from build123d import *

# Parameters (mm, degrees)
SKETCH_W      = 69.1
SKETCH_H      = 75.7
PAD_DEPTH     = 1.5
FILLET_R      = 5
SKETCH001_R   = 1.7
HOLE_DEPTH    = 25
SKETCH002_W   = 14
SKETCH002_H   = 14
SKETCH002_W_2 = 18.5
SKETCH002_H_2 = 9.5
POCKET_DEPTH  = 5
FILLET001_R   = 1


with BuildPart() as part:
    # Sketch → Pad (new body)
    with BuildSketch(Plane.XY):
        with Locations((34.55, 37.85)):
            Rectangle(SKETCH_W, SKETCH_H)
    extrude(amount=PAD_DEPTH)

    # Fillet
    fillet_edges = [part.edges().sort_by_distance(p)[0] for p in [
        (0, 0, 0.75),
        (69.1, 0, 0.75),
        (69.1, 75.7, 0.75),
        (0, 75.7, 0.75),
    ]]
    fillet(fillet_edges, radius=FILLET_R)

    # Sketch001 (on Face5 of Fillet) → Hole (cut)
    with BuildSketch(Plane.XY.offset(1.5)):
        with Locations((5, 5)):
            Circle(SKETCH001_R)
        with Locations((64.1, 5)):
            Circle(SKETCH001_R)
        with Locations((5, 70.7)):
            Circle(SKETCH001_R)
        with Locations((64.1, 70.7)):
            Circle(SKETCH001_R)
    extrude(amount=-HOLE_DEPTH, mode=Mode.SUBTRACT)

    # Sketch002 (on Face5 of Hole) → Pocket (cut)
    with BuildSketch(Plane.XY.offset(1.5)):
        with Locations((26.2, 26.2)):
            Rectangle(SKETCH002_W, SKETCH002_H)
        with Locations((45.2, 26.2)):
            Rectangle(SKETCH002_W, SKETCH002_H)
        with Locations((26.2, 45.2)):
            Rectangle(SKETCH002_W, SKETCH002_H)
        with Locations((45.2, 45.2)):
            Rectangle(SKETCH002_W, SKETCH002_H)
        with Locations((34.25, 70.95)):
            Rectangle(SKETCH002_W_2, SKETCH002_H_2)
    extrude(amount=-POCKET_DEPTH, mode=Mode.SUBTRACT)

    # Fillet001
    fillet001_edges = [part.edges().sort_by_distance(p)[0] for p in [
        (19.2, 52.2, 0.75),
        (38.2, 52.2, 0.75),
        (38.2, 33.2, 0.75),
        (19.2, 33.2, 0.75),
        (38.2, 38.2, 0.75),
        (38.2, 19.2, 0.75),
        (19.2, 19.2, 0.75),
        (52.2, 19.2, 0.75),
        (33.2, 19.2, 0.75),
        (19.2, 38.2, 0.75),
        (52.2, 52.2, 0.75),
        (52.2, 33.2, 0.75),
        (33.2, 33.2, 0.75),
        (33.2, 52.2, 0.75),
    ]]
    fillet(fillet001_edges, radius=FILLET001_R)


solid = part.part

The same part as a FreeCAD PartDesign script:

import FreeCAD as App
import Part
import Sketcher

V = App.Vector
Q = App.Units.Quantity


def edges_at(feature, points):
    """Names of the edges that pass closest to the given points."""
    edges = feature.Shape.Edges
    near = lambda p: min(range(len(edges)), key=lambda i: edges[i].distToShape(Part.Vertex(*p))[0])
    return sorted({f"Edge{near(p) + 1}" for p in points})


def add_polygon(sketch, points):
    """Adds a closed chain of lines whose ends are joined by coincident constraints."""
    first, n = sketch.GeometryCount, len(points)
    for a, b in zip(points, points[1:] + points[:1]):
        sketch.addGeometry(Part.LineSegment(App.Vector(*a, 0), App.Vector(*b, 0)), False)
    for i in range(n):
        sketch.addConstraint(Sketcher.Constraint("Coincident", first + i, 2, first + (i + 1) % n, 1))

doc = App.newDocument("Part")
params = doc.addObject("Spreadsheet::Sheet", "Params")
for row, (alias, value) in enumerate([
    ("sketch1_width", "69.1 mm"),
    ("sketch1_height", "75.7 mm"),
    ("pad1_length", "1.5 mm"),
    ("fillet_radius", "5 mm"),
    ("sketch2_diameter", "3.4 mm"),
    ("pocket1_length", "25 mm"),
    ("sketch3_width", "14 mm"),
    ("sketch3_width2", "18.5 mm"),
    ("sketch3_height", "9.5 mm"),
    ("pocket2_length", "5 mm"),
    ("fillet2_radius", "1 mm"),
], start=1):
    params.set(f"A{row}", alias)
    params.set(f"B{row}", "=" + value)
    params.setAlias(f"B{row}", alias)

body = doc.addObject("PartDesign::Body", "Body")

# Sketch on XY plane
sketch1 = body.newObject("Sketcher::SketchObject", "Sketch")
sketch1.AttachmentSupport = (doc.getObject("XY_Plane"), [""])
sketch1.MapMode = "FlatFace"
add_polygon(sketch1, [(0, 75.7), (0, 0), (69.1, 0), (69.1, 75.7)])  # lines 0-3
sketch1.addConstraint([
    Sketcher.Constraint("Vertical", 0),
    Sketcher.Constraint("Horizontal", 1),
    Sketcher.Constraint("Vertical", 2),
    Sketcher.Constraint("Horizontal", 3),
    Sketcher.Constraint("Coincident", 0, 2, -1, 1),
    Sketcher.Constraint("DistanceX", 1, 1, 1, 2, Q("69.1 mm")),
    Sketcher.Constraint("DistanceY", 0, 2, 0, 1, Q("75.7 mm")),
])
sketch1.setExpression("Constraints[9]", "Params.sketch1_width")
sketch1.setExpression("Constraints[10]", "Params.sketch1_height")
pad1 = body.newObject("PartDesign::Pad", "Pad")
pad1.Profile = sketch1
pad1.setExpression("Length", "Params.pad1_length")
doc.recompute()

fillet = body.newObject("PartDesign::Fillet", "Fillet")
fillet.Base = (pad1, edges_at(pad1, [
    (0, 0, 0.75),
    (69.1, 0, 0.75),
    (69.1, 75.7, 0.75),
    (0, 75.7, 0.75),
]))
fillet.setExpression("Radius", "Params.fillet_radius")

# Sketch on XY plane
sketch2 = body.newObject("Sketcher::SketchObject", "Sketch001")
sketch2.AttachmentSupport = (doc.getObject("XY_Plane"), [""])
sketch2.MapMode = "FlatFace"
sketch2.AttachmentOffset = App.Placement(V(0, 0, 1.5), App.Rotation())
sketch2.addGeometry([
    Part.Circle(V(5, 5, 0), V(0, 0, 1), 1.7),
    Part.Circle(V(64.1, 5, 0), V(0, 0, 1), 1.7),
    Part.Circle(V(5, 70.7, 0), V(0, 0, 1), 1.7),
    Part.Circle(V(64.1, 70.7, 0), V(0, 0, 1), 1.7),
], False)
sketch2.addConstraint([
    Sketcher.Constraint("Equal", 0, 1),
    Sketcher.Constraint("Equal", 1, 2),
    Sketcher.Constraint("Equal", 2, 3),
    Sketcher.Constraint("Horizontal", 0, 3, 1, 3),
    Sketcher.Constraint("Horizontal", 2, 3, 3, 3),
    Sketcher.Constraint("Vertical", 0, 3, 2, 3),
    Sketcher.Constraint("Vertical", 1, 3, 3, 3),
    Sketcher.Constraint("Diameter", 0, Q("3.4 mm")),
    Sketcher.Constraint("DistanceX", -1, 1, 0, 3, Q("5 mm")),
    Sketcher.Constraint("DistanceY", -1, 1, 0, 3, Q("5 mm")),
    Sketcher.Constraint("DistanceX", -1, 1, 1, 3, Q("64.1 mm")),
    Sketcher.Constraint("DistanceY", -1, 1, 2, 3, Q("70.7 mm")),
])
sketch2.setExpression("Constraints[7]", "Params.sketch2_diameter")
pocket1 = body.newObject("PartDesign::Pocket", "Pocket")
pocket1.Profile = sketch2
pocket1.setExpression("Length", "Params.pocket1_length")

# Sketch on XY plane
sketch3 = body.newObject("Sketcher::SketchObject", "Sketch002")
sketch3.AttachmentSupport = (doc.getObject("XY_Plane"), [""])
sketch3.MapMode = "FlatFace"
sketch3.AttachmentOffset = App.Placement(V(0, 0, 1.5), App.Rotation())
add_polygon(sketch3, [(19.2, 33.2), (19.2, 19.2), (33.2, 19.2), (33.2, 33.2)])  # lines 0-3
add_polygon(sketch3, [(38.2, 33.2), (38.2, 19.2), (52.2, 19.2), (52.2, 33.2)])  # lines 4-7
add_polygon(sketch3, [(19.2, 52.2), (19.2, 38.2), (33.2, 38.2), (33.2, 52.2)])  # lines 8-11
add_polygon(sketch3, [(38.2, 52.2), (38.2, 38.2), (52.2, 38.2), (52.2, 52.2)])  # lines 12-15
add_polygon(sketch3, [(25, 75.7), (25, 66.2), (43.5, 66.2), (43.5, 75.7)])  # lines 16-19
sketch3.addConstraint([
    Sketcher.Constraint("Vertical", 0),
    Sketcher.Constraint("Horizontal", 1),
    Sketcher.Constraint("Vertical", 2),
    Sketcher.Constraint("Horizontal", 3),
    Sketcher.Constraint("Vertical", 4),
    Sketcher.Constraint("Horizontal", 5),
    Sketcher.Constraint("Vertical", 6),
    Sketcher.Constraint("Horizontal", 7),
    Sketcher.Constraint("Vertical", 8),
    Sketcher.Constraint("Horizontal", 9),
    Sketcher.Constraint("Vertical", 10),
    Sketcher.Constraint("Horizontal", 11),
    Sketcher.Constraint("Vertical", 12),
    Sketcher.Constraint("Horizontal", 13),
    Sketcher.Constraint("Vertical", 14),
    Sketcher.Constraint("Horizontal", 15),
    Sketcher.Constraint("Vertical", 16),
    Sketcher.Constraint("Horizontal", 17),
    Sketcher.Constraint("Vertical", 18),
    Sketcher.Constraint("Horizontal", 19),
    Sketcher.Constraint("Horizontal", 1, 2, 4, 2),
    Sketcher.Constraint("Horizontal", 3, 2, 6, 2),
    Sketcher.Constraint("Horizontal", 9, 2, 12, 2),
    Sketcher.Constraint("Horizontal", 11, 2, 14, 2),
    Sketcher.Constraint("Vertical", 3, 2, 8, 2),
    Sketcher.Constraint("Vertical", 2, 2, 9, 2),
    Sketcher.Constraint("Vertical", 7, 2, 12, 2),
    Sketcher.Constraint("Vertical", 6, 2, 13, 2),
    Sketcher.Constraint("Equal", 3, 5),
    Sketcher.Constraint("Equal", 15, 0),
    Sketcher.Constraint("Equal", 6, 8),
    Sketcher.Constraint("DistanceX", 1, 1, 1, 2, Q("14 mm")),
    Sketcher.Constraint("DistanceX", 17, 1, 17, 2, Q("18.5 mm")),
    Sketcher.Constraint("DistanceY", 16, 2, 16, 1, Q("9.5 mm")),
    Sketcher.Constraint("DistanceX", -1, 1, 16, 2, Q("25 mm")),
    Sketcher.Constraint("DistanceX", 1, 2, 4, 2, Q("5 mm")),
    Sketcher.Constraint("DistanceY", 3, 2, 8, 2, Q("5 mm")),
    Sketcher.Constraint("DistanceY", 11, 2, 16, 2, Q("14 mm")),
    Sketcher.Constraint("DistanceX", -1, 1, 0, 2, Q("19.2 mm")),
    Sketcher.Constraint("DistanceY", -1, 1, 0, 2, Q("19.2 mm")),
])
sketch3.setExpression("Constraints[51]", "Params.sketch3_width")
sketch3.setExpression("Constraints[52]", "Params.sketch3_width2")
sketch3.setExpression("Constraints[53]", "Params.sketch3_height")
pocket2 = body.newObject("PartDesign::Pocket", "Pocket001")
pocket2.Profile = sketch3
pocket2.setExpression("Length", "Params.pocket2_length")
doc.recompute()

fillet2 = body.newObject("PartDesign::Fillet", "Fillet001")
fillet2.Base = (pocket2, edges_at(pocket2, [
    (19.2, 52.2, 0.75),
    (38.2, 52.2, 0.75),
    (38.2, 33.2, 0.75),
    (19.2, 33.2, 0.75),
    (38.2, 38.2, 0.75),
    (38.2, 19.2, 0.75),
    (19.2, 19.2, 0.75),
    (52.2, 19.2, 0.75),
    (33.2, 19.2, 0.75),
    (19.2, 38.2, 0.75),
    (52.2, 52.2, 0.75),
    (52.2, 33.2, 0.75),
    (33.2, 33.2, 0.75),
    (33.2, 52.2, 0.75),
]))
fillet2.setExpression("Radius", "Params.fillet2_radius")

doc.recompute()
